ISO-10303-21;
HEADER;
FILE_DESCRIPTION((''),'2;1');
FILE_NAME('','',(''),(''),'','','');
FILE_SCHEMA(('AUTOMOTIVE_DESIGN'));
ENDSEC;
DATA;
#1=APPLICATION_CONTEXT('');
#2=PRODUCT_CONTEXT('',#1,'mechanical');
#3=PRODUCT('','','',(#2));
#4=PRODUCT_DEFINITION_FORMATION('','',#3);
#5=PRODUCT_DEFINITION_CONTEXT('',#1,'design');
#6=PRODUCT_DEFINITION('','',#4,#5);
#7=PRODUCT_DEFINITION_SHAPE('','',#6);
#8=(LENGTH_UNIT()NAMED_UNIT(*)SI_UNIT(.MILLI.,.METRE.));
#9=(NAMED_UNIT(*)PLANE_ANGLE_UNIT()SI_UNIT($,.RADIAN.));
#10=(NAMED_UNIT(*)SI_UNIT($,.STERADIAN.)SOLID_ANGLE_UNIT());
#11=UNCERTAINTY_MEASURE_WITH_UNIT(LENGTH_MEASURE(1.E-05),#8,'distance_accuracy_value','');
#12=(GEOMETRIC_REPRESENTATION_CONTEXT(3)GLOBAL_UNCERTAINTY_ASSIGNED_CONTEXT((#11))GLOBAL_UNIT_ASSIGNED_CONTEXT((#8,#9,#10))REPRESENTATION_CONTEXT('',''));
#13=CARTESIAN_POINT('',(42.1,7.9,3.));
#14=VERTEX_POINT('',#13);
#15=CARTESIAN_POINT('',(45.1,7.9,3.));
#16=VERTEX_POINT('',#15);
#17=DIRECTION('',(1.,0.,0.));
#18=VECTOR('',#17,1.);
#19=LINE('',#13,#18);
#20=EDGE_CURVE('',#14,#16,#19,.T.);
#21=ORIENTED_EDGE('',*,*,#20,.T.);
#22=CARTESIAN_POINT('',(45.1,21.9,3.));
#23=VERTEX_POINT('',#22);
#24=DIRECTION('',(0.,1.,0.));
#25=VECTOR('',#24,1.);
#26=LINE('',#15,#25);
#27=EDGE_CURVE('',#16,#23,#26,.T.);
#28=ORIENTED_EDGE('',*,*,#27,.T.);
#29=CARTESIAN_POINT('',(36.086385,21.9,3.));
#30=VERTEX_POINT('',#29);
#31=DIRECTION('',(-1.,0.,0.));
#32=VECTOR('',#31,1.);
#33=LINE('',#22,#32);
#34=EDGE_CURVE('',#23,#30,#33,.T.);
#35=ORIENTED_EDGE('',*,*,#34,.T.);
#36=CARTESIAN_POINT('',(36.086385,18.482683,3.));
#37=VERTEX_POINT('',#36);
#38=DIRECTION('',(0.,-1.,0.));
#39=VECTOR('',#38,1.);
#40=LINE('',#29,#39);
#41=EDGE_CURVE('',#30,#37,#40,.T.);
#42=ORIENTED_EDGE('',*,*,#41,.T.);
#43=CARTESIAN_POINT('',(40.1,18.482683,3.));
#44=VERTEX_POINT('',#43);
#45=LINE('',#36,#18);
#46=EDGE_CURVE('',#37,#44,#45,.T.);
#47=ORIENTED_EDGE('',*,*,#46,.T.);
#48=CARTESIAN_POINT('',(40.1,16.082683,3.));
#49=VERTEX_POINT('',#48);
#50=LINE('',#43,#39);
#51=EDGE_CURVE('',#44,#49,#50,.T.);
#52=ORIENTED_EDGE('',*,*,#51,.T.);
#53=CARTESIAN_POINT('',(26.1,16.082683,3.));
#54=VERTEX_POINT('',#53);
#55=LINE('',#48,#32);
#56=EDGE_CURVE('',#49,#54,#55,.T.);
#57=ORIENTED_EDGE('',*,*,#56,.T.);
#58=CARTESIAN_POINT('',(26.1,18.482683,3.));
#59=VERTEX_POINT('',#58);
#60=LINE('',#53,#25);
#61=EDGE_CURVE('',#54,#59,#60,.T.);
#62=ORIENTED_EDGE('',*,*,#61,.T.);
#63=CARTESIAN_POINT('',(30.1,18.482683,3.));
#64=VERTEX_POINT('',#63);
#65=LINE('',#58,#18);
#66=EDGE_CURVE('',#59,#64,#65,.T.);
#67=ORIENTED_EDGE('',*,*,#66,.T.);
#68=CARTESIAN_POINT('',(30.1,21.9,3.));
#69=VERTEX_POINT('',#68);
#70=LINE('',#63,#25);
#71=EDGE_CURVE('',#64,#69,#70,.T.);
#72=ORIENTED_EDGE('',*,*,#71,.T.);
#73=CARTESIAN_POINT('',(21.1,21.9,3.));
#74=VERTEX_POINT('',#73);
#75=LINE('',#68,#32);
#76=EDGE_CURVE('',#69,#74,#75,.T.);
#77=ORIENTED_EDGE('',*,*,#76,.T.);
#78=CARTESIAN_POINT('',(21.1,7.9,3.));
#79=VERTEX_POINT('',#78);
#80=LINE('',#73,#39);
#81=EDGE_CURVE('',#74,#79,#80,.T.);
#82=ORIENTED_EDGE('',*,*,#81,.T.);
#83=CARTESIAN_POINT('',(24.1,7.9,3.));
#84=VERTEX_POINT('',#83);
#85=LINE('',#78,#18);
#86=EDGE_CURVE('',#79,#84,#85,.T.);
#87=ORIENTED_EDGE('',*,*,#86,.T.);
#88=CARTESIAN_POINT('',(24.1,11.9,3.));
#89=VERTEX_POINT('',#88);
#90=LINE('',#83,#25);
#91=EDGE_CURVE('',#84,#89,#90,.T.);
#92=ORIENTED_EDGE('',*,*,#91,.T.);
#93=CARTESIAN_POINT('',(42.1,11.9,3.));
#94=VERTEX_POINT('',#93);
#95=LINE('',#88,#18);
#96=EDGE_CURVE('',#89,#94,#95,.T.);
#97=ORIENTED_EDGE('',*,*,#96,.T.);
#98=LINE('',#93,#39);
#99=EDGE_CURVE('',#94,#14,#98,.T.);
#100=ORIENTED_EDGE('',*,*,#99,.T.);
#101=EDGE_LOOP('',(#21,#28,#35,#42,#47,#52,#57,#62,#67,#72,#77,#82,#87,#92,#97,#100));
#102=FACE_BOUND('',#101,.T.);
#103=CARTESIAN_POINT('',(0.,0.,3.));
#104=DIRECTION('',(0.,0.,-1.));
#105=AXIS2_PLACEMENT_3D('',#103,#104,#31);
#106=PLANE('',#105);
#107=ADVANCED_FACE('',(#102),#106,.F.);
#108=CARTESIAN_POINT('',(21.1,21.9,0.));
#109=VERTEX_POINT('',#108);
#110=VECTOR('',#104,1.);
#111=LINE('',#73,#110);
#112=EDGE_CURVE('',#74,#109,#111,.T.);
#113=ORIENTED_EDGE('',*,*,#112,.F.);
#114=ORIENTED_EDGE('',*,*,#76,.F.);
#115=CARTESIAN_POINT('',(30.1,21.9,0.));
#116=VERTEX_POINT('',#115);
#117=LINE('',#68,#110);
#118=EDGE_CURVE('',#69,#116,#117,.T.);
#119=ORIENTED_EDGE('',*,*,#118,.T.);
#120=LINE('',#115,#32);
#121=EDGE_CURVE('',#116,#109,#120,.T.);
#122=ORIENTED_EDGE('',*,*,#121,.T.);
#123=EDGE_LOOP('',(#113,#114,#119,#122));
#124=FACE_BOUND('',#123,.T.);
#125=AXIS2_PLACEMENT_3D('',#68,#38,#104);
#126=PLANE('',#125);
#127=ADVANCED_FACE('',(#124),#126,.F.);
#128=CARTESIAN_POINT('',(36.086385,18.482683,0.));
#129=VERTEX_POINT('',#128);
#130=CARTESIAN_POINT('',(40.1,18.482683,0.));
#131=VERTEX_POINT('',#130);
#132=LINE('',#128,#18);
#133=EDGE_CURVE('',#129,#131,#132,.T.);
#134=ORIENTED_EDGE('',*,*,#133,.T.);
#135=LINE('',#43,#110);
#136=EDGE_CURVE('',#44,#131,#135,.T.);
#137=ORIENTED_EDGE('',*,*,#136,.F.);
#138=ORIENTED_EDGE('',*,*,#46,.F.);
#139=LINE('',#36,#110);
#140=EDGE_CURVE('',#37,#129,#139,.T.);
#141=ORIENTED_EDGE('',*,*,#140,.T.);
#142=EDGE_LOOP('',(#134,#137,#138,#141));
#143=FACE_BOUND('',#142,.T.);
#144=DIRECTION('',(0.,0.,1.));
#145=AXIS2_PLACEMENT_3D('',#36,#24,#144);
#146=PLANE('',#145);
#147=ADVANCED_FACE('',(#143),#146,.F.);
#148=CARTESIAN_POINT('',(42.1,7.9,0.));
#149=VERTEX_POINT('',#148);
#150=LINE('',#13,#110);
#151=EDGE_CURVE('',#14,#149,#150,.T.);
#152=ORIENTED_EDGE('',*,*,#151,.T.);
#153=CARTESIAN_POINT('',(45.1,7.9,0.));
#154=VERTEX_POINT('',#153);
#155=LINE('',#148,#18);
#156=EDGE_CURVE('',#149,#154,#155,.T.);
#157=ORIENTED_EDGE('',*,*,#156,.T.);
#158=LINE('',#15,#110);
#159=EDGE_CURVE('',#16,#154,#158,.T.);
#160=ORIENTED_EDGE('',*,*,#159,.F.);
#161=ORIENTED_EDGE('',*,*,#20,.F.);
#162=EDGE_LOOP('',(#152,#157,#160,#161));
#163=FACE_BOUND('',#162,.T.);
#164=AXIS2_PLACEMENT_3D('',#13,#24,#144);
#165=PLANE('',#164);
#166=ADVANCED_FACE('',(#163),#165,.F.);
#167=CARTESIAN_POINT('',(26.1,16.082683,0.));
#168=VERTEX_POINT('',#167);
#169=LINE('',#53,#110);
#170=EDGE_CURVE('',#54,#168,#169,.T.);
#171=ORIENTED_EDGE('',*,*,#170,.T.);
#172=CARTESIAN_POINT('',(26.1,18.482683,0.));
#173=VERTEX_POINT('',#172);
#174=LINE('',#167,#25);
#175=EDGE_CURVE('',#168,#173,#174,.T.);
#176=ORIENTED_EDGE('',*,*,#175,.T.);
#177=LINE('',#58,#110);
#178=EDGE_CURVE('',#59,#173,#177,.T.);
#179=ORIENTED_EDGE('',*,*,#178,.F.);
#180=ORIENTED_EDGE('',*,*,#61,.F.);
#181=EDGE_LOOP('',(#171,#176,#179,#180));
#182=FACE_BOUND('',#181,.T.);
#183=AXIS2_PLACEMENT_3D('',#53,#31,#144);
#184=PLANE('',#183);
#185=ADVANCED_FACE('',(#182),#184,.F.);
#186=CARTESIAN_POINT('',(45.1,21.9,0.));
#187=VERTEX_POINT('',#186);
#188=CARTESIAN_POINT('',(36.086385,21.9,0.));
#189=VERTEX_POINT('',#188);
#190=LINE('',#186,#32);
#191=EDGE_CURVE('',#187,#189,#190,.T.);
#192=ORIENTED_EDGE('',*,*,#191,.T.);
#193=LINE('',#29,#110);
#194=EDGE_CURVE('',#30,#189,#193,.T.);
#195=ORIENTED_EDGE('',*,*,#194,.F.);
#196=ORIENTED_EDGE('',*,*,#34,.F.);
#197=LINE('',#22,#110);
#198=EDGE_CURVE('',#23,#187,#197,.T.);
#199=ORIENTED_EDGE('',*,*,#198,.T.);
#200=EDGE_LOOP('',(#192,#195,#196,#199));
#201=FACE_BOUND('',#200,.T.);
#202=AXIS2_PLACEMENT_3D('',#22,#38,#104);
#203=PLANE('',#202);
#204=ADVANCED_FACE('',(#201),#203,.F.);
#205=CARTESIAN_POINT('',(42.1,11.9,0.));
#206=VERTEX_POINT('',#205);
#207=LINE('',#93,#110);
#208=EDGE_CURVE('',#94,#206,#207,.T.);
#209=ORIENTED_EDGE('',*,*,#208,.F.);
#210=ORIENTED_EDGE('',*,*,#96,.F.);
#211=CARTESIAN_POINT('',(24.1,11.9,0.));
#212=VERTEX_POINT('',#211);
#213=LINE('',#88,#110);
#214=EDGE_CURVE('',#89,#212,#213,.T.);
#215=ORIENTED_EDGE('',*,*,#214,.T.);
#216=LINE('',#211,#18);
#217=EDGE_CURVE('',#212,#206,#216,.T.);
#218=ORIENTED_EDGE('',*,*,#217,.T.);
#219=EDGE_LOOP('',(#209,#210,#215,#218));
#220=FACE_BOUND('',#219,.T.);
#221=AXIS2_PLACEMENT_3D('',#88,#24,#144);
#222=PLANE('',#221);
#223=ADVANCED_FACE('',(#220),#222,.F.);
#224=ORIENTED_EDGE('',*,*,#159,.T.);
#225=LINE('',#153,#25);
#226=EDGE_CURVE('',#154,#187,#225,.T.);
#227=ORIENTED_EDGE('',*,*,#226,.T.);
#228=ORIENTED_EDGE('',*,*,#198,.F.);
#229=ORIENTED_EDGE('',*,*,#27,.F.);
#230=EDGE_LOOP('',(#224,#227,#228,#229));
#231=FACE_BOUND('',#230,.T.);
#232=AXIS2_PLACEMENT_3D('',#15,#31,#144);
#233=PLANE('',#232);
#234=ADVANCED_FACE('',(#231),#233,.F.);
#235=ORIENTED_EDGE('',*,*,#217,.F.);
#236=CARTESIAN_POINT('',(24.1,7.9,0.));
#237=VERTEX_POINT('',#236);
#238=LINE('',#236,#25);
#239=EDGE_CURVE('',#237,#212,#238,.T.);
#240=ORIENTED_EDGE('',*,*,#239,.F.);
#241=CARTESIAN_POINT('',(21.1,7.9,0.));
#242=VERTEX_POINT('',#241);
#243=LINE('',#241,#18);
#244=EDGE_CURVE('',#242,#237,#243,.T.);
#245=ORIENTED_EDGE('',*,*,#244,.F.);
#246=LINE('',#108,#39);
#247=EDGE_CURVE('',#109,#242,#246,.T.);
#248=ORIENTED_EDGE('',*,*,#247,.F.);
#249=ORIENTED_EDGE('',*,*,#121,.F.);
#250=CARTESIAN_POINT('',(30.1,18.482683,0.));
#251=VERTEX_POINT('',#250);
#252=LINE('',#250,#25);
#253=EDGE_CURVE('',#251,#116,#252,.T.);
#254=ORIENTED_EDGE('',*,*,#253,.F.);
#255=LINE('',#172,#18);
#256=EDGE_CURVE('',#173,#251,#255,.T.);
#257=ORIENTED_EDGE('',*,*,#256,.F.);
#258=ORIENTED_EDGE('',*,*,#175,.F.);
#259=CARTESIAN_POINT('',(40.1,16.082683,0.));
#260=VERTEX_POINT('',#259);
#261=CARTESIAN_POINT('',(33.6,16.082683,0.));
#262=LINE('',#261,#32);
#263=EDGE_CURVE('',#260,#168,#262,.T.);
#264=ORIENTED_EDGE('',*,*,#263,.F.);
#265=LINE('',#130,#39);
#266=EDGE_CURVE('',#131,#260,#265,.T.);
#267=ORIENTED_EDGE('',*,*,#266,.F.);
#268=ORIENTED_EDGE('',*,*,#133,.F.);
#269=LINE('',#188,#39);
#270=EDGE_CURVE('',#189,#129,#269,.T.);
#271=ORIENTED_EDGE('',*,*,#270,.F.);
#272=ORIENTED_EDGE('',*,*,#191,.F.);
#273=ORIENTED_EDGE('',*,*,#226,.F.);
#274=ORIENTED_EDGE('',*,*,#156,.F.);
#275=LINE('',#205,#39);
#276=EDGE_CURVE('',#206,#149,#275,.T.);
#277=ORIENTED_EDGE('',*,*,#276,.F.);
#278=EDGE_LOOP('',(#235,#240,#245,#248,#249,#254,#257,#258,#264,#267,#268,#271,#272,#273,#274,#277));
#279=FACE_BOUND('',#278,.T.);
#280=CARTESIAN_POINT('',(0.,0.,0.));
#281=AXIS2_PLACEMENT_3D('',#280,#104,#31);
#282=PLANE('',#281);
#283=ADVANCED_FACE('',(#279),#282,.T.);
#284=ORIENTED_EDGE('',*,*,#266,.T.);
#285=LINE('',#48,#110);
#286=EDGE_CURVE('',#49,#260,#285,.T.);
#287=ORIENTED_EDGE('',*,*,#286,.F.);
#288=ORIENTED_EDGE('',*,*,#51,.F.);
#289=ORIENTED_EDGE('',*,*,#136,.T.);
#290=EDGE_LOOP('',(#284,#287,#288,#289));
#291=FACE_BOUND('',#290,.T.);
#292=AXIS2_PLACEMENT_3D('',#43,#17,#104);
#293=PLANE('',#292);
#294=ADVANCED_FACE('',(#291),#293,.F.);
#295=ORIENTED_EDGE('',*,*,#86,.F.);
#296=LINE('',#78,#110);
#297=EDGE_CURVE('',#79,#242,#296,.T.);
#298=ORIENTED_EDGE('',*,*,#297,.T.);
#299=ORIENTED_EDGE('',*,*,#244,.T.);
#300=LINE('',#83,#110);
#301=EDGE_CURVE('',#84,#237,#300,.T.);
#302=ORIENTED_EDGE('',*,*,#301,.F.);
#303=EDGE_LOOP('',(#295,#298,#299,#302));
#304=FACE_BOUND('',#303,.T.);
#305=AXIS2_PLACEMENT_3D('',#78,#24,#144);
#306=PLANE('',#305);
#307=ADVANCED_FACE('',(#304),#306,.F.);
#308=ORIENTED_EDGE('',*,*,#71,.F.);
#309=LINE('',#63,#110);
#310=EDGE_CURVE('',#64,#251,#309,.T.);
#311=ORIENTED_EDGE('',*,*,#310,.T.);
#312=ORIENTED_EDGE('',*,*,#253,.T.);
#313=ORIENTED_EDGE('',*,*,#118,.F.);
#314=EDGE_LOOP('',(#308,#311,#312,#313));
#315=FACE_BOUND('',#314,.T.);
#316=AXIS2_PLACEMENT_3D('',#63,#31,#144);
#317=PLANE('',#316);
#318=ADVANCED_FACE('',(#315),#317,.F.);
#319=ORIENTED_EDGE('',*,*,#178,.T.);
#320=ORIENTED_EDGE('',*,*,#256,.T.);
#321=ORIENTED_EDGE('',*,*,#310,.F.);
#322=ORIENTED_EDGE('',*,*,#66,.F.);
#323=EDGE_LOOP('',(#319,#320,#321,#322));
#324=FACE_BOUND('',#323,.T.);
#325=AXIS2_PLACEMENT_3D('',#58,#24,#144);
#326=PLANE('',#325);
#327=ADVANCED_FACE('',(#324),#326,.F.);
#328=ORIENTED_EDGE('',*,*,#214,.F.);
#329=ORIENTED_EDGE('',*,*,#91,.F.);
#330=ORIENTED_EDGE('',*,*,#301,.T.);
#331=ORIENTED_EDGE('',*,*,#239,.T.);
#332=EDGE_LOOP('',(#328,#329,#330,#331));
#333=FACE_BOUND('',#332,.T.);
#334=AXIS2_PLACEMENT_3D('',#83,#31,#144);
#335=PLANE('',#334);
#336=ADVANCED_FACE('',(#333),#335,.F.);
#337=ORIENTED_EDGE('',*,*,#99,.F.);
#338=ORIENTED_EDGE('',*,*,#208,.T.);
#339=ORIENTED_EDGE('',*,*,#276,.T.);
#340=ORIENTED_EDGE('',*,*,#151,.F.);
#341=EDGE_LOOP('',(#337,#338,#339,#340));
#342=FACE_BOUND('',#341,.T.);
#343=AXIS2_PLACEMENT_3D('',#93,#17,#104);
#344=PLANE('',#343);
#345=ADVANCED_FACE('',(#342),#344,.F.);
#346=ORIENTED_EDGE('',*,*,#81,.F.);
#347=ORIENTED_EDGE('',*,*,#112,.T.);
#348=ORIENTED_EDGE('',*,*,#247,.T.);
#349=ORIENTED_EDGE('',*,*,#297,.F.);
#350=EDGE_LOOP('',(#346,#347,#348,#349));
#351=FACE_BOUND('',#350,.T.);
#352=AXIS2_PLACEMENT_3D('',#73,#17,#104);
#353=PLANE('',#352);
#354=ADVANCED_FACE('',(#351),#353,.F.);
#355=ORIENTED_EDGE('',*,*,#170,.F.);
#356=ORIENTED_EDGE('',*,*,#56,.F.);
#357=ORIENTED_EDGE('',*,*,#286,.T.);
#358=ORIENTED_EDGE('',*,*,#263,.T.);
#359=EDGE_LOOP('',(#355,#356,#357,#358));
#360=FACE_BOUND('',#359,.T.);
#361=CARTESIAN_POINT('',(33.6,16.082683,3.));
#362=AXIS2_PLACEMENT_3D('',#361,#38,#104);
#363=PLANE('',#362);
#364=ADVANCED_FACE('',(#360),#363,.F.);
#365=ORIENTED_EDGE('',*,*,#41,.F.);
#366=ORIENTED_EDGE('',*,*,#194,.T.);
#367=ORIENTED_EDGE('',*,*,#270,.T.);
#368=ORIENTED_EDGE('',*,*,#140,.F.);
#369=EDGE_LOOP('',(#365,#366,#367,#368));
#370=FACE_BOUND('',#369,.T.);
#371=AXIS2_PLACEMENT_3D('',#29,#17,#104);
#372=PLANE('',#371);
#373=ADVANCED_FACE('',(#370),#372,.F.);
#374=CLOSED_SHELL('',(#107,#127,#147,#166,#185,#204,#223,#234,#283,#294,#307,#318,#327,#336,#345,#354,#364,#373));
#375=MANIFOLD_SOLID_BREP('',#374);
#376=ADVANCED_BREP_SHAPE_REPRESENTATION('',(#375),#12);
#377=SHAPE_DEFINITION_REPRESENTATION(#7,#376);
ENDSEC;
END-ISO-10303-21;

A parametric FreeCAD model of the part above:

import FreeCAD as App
import Part
import Sketcher
from FreeCAD import Vector

doc = App.newDocument("Part")
body = doc.addObject("PartDesign::Body", "Body")

# Sketch on XY plane
sketch1 = body.newObject("Sketcher::SketchObject", "Sketch")
sketch1.AttachmentSupport = (doc.getObject("XY_Plane"), [""])
sketch1.MapMode = "FlatFace"
sketch1.addGeometry([
    Part.LineSegment(Vector(26.1, 16.1, 0), Vector(26.1, 18.5, 0)),  # 0
    Part.LineSegment(Vector(26.1, 18.5, 0), Vector(30.1, 18.5, 0)),  # 1
    Part.LineSegment(Vector(30.1, 18.5, 0), Vector(30.1, 21.9, 0)),  # 2
    Part.LineSegment(Vector(30.1, 21.9, 0), Vector(21.1, 21.9, 0)),  # 3
    Part.LineSegment(Vector(21.1, 21.9, 0), Vector(21.1, 7.9, 0)),  # 4
    Part.LineSegment(Vector(21.1, 7.9, 0), Vector(24.1, 7.9, 0)),  # 5
    Part.LineSegment(Vector(24.1, 7.9, 0), Vector(24.1, 11.9, 0)),  # 6
    Part.LineSegment(Vector(24.1, 11.9, 0), Vector(42.1, 11.9, 0)),  # 7
    Part.LineSegment(Vector(42.1, 11.9, 0), Vector(42.1, 7.9, 0)),  # 8
    Part.LineSegment(Vector(42.1, 7.9, 0), Vector(45.1, 7.9, 0)),  # 9
    Part.LineSegment(Vector(45.1, 7.9, 0), Vector(45.1, 21.9, 0)),  # 10
    Part.LineSegment(Vector(45.1, 21.9, 0), Vector(36.1, 21.9, 0)),  # 11
    Part.LineSegment(Vector(36.1, 21.9, 0), Vector(36.1, 18.5, 0)),  # 12
    Part.LineSegment(Vector(36.1, 18.5, 0), Vector(40.1, 18.5, 0)),  # 13
    Part.LineSegment(Vector(40.1, 18.5, 0), Vector(40.1, 16.1, 0)),  # 14
    Part.LineSegment(Vector(40.1, 16.1, 0), Vector(26.1, 16.1, 0)),  # 15
], False)
sketch1.addConstraint([
    Sketcher.Constraint("Coincident", 0, 2, 1, 1),
    Sketcher.Constraint("Coincident", 1, 2, 2, 1),
    Sketcher.Constraint("Coincident", 2, 2, 3, 1),
    Sketcher.Constraint("Coincident", 3, 2, 4, 1),
    Sketcher.Constraint("Coincident", 4, 2, 5, 1),
    Sketcher.Constraint("Coincident", 5, 2, 6, 1),
    Sketcher.Constraint("Coincident", 6, 2, 7, 1),
    Sketcher.Constraint("Coincident", 7, 2, 8, 1),
    Sketcher.Constraint("Coincident", 8, 2, 9, 1),
    Sketcher.Constraint("Coincident", 9, 2, 10, 1),
    Sketcher.Constraint("Coincident", 10, 2, 11, 1),
    Sketcher.Constraint("Coincident", 11, 2, 12, 1),
    Sketcher.Constraint("Coincident", 12, 2, 13, 1),
    Sketcher.Constraint("Coincident", 13, 2, 14, 1),
    Sketcher.Constraint("Coincident", 14, 2, 15, 1),
    Sketcher.Constraint("Coincident", 15, 2, 0, 1),
    Sketcher.Constraint("Vertical", 0),
    Sketcher.Constraint("Horizontal", 1),
    Sketcher.Constraint("Vertical", 2),
    Sketcher.Constraint("Horizontal", 3),
    Sketcher.Constraint("Vertical", 4),
    Sketcher.Constraint("Horizontal", 5),
    Sketcher.Constraint("Vertical", 6),
    Sketcher.Constraint("Horizontal", 7),
    Sketcher.Constraint("Vertical", 8),
    Sketcher.Constraint("Horizontal", 9),
    Sketcher.Constraint("Vertical", 10),
    Sketcher.Constraint("Horizontal", 11),
    Sketcher.Constraint("Vertical", 12),
    Sketcher.Constraint("Horizontal", 13),
    Sketcher.Constraint("Vertical", 14),
    Sketcher.Constraint("Horizontal", 15),
    Sketcher.Constraint("Horizontal", 5, 2, 8, 2),
    Sketcher.Constraint("Horizontal", 3, 2, 10, 2),
    Sketcher.Constraint("Horizontal", 1, 2, 12, 2),
    Sketcher.Constraint("Equal", 5, 9),
    Sketcher.Constraint("Equal", 15, 4),
    Sketcher.Constraint("Equal", 1, 6),
    Sketcher.Constraint("DistanceX", 1, 1, 1, 2, 4.0),
    Sketcher.Constraint("DistanceX", 3, 2, 3, 1, 9.0),
    Sketcher.Constraint("DistanceX", 5, 1, 5, 2, 3.0),
    Sketcher.Constraint("DistanceX", 7, 1, 7, 2, 18.0),
    Sketcher.Constraint("DistanceX", 15, 2, 15, 1, 14.0),
    Sketcher.Constraint("DistanceY", 0, 1, 0, 2, 2.4),
    Sketcher.Constraint("DistanceX", -1, 1, 0, 2, 26.1),
    Sketcher.Constraint("DistanceY", -1, 1, 2, 2, 21.9),
    Sketcher.Constraint("DistanceX", 11, 2, 11, 1, 9.013615),
    Sketcher.Constraint("DistanceY", 2, 1, 2, 2, 3.417317),
])
pad1 = body.newObject("PartDesign::Pad", "Pad")
pad1.Profile = sketch1
pad1.Length = 3

doc.recompute()
